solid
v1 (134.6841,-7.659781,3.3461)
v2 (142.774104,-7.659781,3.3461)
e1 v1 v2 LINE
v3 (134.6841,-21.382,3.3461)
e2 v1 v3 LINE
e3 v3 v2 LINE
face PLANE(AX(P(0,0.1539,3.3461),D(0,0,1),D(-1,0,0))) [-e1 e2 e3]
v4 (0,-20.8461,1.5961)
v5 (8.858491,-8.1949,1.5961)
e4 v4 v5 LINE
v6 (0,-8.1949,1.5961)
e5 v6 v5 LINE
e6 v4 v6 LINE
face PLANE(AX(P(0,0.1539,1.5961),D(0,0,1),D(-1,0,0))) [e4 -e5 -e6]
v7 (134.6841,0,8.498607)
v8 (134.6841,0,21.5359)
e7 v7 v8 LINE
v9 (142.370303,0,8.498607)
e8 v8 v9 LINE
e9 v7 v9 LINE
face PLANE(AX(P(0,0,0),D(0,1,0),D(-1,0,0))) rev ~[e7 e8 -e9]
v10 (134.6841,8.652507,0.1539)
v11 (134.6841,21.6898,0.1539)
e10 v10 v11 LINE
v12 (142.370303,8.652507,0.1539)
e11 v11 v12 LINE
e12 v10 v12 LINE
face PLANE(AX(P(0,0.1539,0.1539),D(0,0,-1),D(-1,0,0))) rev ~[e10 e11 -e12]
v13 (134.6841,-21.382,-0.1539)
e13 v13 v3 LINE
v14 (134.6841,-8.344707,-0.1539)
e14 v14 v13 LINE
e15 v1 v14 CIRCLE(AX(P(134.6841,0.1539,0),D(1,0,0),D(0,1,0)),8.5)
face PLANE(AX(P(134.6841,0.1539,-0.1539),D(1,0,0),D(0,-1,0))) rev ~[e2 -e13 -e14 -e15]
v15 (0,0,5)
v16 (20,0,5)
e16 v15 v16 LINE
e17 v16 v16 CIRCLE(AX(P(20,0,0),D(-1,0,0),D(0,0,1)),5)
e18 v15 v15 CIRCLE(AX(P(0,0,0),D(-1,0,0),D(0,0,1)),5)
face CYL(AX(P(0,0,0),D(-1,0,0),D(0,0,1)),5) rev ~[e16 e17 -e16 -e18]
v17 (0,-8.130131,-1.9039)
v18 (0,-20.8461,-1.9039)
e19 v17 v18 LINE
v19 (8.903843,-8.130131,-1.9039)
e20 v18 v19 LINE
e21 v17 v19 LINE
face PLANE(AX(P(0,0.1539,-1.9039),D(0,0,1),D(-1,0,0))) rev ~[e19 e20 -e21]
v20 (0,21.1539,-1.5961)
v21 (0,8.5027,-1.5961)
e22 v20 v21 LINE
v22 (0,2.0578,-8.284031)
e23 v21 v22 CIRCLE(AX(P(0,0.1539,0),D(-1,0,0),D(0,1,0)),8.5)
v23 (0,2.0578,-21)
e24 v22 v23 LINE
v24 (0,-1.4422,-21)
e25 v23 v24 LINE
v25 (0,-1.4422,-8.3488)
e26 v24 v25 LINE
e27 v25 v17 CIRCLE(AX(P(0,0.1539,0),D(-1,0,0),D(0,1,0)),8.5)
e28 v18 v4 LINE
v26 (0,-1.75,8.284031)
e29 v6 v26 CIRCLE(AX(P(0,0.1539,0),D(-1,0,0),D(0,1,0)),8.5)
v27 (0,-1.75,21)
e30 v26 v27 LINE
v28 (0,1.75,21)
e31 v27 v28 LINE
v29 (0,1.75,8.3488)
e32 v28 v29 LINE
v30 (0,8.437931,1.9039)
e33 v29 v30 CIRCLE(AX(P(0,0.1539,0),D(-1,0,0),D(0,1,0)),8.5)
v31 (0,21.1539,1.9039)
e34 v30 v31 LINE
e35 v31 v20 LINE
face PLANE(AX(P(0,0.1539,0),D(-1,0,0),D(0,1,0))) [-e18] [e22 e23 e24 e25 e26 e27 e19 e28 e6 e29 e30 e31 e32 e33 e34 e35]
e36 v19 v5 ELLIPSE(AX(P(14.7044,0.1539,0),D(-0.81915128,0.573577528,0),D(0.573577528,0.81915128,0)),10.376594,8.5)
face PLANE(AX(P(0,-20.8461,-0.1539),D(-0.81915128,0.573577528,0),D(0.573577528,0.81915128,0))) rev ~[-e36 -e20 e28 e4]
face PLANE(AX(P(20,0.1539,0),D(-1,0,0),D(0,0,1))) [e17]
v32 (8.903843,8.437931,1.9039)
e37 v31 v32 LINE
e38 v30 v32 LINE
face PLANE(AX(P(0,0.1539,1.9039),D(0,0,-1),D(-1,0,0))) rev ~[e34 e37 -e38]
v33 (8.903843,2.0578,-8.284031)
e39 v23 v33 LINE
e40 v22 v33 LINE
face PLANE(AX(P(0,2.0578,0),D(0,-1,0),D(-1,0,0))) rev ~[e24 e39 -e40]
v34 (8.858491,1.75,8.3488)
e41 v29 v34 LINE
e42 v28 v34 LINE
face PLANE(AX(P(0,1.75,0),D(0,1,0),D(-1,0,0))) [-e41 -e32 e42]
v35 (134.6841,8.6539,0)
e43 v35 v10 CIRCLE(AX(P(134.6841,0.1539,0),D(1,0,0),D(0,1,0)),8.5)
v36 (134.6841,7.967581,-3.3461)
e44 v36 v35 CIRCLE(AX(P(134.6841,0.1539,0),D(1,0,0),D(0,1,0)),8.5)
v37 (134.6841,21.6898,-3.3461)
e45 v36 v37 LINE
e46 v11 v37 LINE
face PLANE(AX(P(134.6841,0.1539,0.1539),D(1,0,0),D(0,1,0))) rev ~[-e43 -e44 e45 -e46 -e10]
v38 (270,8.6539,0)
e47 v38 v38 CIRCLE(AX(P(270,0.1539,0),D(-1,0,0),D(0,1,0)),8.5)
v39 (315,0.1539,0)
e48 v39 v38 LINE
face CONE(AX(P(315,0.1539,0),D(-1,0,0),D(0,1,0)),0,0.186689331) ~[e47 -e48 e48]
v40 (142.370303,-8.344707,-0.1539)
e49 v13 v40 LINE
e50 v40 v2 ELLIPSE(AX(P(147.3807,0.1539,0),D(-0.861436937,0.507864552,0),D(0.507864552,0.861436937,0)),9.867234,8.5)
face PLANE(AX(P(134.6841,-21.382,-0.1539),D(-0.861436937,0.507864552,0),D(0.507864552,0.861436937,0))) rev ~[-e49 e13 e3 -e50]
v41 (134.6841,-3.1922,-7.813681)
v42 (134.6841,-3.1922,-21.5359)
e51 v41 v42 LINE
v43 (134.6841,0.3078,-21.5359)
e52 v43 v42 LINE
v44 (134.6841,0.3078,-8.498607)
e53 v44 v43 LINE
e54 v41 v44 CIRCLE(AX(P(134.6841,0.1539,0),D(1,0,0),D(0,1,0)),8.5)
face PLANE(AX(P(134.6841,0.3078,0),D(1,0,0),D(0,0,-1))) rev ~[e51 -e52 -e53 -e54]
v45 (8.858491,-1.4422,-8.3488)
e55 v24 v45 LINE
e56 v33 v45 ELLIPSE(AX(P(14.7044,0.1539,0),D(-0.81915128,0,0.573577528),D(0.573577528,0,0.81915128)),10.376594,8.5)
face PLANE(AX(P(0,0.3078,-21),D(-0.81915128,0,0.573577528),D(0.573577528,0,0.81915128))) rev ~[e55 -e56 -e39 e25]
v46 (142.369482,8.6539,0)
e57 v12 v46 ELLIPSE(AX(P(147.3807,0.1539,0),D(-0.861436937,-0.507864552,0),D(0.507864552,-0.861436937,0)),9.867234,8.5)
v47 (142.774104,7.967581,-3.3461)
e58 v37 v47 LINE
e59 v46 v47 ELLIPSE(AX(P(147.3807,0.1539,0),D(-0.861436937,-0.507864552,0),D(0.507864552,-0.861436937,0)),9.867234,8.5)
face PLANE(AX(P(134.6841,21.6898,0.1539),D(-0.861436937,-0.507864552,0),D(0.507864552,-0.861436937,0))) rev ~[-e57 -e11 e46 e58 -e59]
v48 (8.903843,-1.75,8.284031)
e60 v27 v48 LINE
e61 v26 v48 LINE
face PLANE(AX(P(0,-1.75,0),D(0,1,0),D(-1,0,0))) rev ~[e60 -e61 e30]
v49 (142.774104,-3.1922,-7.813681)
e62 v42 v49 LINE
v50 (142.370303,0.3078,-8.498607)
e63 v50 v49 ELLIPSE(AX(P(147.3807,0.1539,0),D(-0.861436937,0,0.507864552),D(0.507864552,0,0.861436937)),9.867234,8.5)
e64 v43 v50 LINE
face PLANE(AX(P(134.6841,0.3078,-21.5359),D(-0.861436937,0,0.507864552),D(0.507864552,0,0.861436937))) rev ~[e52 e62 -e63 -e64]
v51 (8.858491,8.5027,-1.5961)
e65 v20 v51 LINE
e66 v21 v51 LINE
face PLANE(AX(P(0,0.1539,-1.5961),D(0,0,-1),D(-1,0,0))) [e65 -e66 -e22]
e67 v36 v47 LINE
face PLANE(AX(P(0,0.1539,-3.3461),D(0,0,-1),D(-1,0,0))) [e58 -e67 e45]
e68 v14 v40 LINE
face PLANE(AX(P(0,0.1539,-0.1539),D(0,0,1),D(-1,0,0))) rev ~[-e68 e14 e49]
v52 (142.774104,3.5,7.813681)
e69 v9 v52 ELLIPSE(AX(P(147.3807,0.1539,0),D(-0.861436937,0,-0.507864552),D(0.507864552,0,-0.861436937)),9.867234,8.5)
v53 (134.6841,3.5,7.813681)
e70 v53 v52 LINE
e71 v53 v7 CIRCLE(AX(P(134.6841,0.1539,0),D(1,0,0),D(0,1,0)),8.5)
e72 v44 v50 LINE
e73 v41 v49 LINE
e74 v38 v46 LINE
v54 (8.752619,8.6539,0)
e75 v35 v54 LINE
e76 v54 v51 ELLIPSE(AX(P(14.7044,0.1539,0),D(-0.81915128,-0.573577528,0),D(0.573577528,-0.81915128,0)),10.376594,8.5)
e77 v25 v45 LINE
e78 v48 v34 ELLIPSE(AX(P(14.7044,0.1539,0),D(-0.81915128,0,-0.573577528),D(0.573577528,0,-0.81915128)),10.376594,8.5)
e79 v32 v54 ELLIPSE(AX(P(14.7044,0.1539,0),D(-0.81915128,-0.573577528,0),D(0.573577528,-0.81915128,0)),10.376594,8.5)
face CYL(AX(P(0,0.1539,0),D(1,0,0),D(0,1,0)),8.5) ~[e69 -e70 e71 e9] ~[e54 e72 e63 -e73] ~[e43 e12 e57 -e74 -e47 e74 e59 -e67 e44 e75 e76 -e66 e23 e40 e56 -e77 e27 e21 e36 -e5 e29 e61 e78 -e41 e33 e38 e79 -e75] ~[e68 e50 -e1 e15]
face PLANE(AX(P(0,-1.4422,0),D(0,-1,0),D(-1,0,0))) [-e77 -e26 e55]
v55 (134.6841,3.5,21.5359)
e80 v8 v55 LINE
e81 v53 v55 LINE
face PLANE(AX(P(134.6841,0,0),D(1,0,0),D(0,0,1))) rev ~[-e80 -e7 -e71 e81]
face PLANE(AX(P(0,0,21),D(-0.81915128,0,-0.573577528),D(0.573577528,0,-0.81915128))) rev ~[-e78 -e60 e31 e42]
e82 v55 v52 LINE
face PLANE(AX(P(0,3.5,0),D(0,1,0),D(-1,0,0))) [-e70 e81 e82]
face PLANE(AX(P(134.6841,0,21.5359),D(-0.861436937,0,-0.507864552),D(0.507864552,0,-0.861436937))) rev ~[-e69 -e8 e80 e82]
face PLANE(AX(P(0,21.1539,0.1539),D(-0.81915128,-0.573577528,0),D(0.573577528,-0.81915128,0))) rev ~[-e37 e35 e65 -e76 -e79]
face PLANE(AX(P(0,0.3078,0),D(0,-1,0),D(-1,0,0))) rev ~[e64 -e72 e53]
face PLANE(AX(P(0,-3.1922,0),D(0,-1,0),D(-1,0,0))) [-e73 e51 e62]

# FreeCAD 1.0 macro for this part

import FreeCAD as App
import Part
import Sketcher

V = App.Vector
Q = App.Units.Quantity


def add_polygon(sketch, points):
    """Adds a closed chain of lines whose ends are joined by coincident constraints."""
    first, n = sketch.GeometryCount, len(points)
    for a, b in zip(points, points[1:] + points[:1]):
        sketch.addGeometry(Part.LineSegment(App.Vector(*a, 0), App.Vector(*b, 0)), False)
    for i in range(n):
        sketch.addConstraint(Sketcher.Constraint("Coincident", first + i, 2, first + (i + 1) % n, 1))

doc = App.newDocument("Part")
body = doc.addObject("PartDesign::Body", "Body")

# Sketch on XY plane
sketch1 = doc.addObject("Sketcher::SketchObject", "Sketch")
body.addObject(sketch1)
sketch1.AttachmentSupport = (doc.XY_Plane, [""])
sketch1.MapMode = "FlatFace"
add_polygon(sketch1, [(0, 9), (0, 0), (270, 0), (270, 9)])  # lines 0-3
sketch1.addGeometry(Part.LineSegment(V(270, 0, 0), V(0, 0, 0)), True)  # axis
sketch1.addConstraint(Sketcher.Constraint("Vertical", 0))
sketch1.addConstraint(Sketcher.Constraint("Horizontal", 1))
sketch1.addConstraint(Sketcher.Constraint("Vertical", 2))
sketch1.addConstraint(Sketcher.Constraint("Horizontal", 3))
sketch1.addConstraint(Sketcher.Constraint("Horizontal", 4))
sketch1.addConstraint(Sketcher.Constraint("Coincident", 4, 1, 1, 2))
sketch1.addConstraint(Sketcher.Constraint("PointOnObject", 0, 2, -2))
sketch1.addConstraint(Sketcher.Constraint("PointOnObject", 4, 2, -2))
sketch1.addConstraint(Sketcher.Constraint("DistanceX", 1, 1, 1, 2, Q("270 mm")))
sketch1.addConstraint(Sketcher.Constraint("DistanceY", 0, 2, 0, 1, Q("8.5 mm")))
sketch1.addConstraint(Sketcher.Constraint("DistanceY", -1, 1, 0, 2, Q("0.154 mm")))
revolution = doc.addObject("PartDesign::Revolution", "Revolution")
body.addObject(revolution)
revolution.Profile = sketch1
revolution.ReferenceAxis = (sketch1, ["Axis0"])
revolution.Angle = 360

# Sketch on XY plane
sketch2 = doc.addObject("Sketcher::SketchObject", "Sketch001")
body.addObject(sketch2)
sketch2.AttachmentSupport = (doc.XY_Plane, [""])
sketch2.MapMode = "FlatFace"
add_polygon(sketch2, [(270, 0), (315, 0), (270, 9)])  # lines 0-2
sketch2.addGeometry(Part.LineSegment(V(270, 0, 0), V(315, 0, 0)), True)  # axis
sketch2.addConstraint(Sketcher.Constraint("Horizontal", 0))
sketch2.addConstraint(Sketcher.Constraint("Vertical", 2))
sketch2.addConstraint(Sketcher.Constraint("Horizontal", 3))
sketch2.addConstraint(Sketcher.Constraint("Coincident", 3, 1, 2, 2))
sketch2.addConstraint(Sketcher.Constraint("Equal", 0, 3))
sketch2.addConstraint(Sketcher.Constraint("DistanceX", 0, 1, 0, 2, Q("45 mm")))
sketch2.addConstraint(Sketcher.Constraint("DistanceY", 2, 2, 2, 1, Q("8.5 mm")))
sketch2.addConstraint(Sketcher.Constraint("DistanceX", -1, 1, 0, 2, Q("315 mm")))
sketch2.addConstraint(Sketcher.Constraint("DistanceY", -1, 1, 0, 2, Q("0.154 mm")))
revolution2 = doc.addObject("PartDesign::Revolution", "Revolution001")
body.addObject(revolution2)
revolution2.Profile = sketch2
revolution2.ReferenceAxis = (sketch2, ["Axis0"])
revolution2.Angle = 360

# Sketch on XZ plane
sketch3 = doc.addObject("Sketcher::SketchObject", "Sketch002")
body.addObject(sketch3)
sketch3.AttachmentSupport = (doc.XZ_Plane, [""])
sketch3.MapMode = "FlatFace"
add_polygon(sketch3, [(147, 0), (135, 0), (135, 22)])  # lines 0-2
sketch3.addConstraint(Sketcher.Constraint("Horizontal", 0))
sketch3.addConstraint(Sketcher.Constraint("Vertical", 1))
sketch3.addConstraint(Sketcher.Constraint("PointOnObject", 0, 2, -1))
sketch3.addConstraint(Sketcher.Constraint("Distance", 2, Q("25 mm")))
sketch3.addConstraint(Sketcher.Constraint("DistanceY", 1, 1, 1, 2, Q("21.536 mm")))
sketch3.addConstraint(Sketcher.Constraint("DistanceX", -1, 1, 0, 2, Q("134.684 mm")))
pad1 = doc.addObject("PartDesign::Pad", "Pad")
body.addObject(pad1)
pad1.Profile = sketch3
pad1.Length = 3.5
pad1.Reversed = True
doc.recompute()

datumline = doc.addObject("PartDesign::Line", "DatumLine")
body.addObject(datumline)
datumline.Placement = App.Placement(V(0, 0.1539, 0), App.Rotation(V(0, 0, 1), V(1, 0, 0)))
polarpattern = doc.addObject("PartDesign::PolarPattern", "PolarPattern")
body.addObject(polarpattern)
polarpattern.Originals = [pad1]
polarpattern.Axis = (datumline, [""])
polarpattern.Angle = 360
polarpattern.Occurrences = 4
body.Tip = polarpattern

# Sketch on XZ plane
sketch4 = doc.addObject("Sketcher::SketchObject", "Sketch003")
body.addObject(sketch4)
sketch4.AttachmentSupport = (doc.XZ_Plane, [""])
sketch4.MapMode = "FlatFace"
add_polygon(sketch4, [(15, 0), (0, 0), (0, 21)])  # lines 0-2
sketch4.addConstraint(Sketcher.Constraint("Horizontal", 0))
sketch4.addConstraint(Sketcher.Constraint("Vertical", 1))
sketch4.addConstraint(Sketcher.Constraint("Coincident", 0, 2, -1, 1))
sketch4.addConstraint(Sketcher.Constraint("DistanceY", 1, 1, 1, 2, Q("21 mm")))
sketch4.addConstraint(Sketcher.Constraint("Angle", 2, Q("-55 deg")))
pad2 = doc.addObject("PartDesign::Pad", "Pad001")
body.addObject(pad2)
pad2.Profile = sketch4
pad2.Length = 3.5
pad2.Midplane = True
doc.recompute()

datumline2 = doc.addObject("PartDesign::Line", "DatumLine001")
body.addObject(datumline2)
datumline2.Placement = App.Placement(V(0, 0.1539, 0), App.Rotation(V(0, 0, 1), V(1, 0, 0)))
polarpattern2 = doc.addObject("PartDesign::PolarPattern", "PolarPattern001")
body.addObject(polarpattern2)
polarpattern2.Originals = [pad2]
polarpattern2.Axis = (datumline2, [""])
polarpattern2.Angle = 360
polarpattern2.Occurrences = 4
body.Tip = polarpattern2

# Sketch on YZ plane
sketch5 = doc.addObject("Sketcher::SketchObject", "Sketch004")
body.addObject(sketch5)
sketch5.AttachmentSupport = (doc.YZ_Plane, [""])
sketch5.MapMode = "FlatFace"
sketch5.addGeometry(Part.Circle(V(0, 0, 0), V(0, 0, 1), 5), False)
sketch5.addConstraint(Sketcher.Constraint("Coincident", 0, 3, -1, 1))
sketch5.addConstraint(Sketcher.Constraint("Diameter", 0, Q("10 mm")))
pocket1 = doc.addObject("PartDesign::Pocket", "Pocket")
body.addObject(pocket1)
pocket1.Profile = sketch5
pocket1.Length = 20
pocket1.Reversed = True

doc.recompute()
